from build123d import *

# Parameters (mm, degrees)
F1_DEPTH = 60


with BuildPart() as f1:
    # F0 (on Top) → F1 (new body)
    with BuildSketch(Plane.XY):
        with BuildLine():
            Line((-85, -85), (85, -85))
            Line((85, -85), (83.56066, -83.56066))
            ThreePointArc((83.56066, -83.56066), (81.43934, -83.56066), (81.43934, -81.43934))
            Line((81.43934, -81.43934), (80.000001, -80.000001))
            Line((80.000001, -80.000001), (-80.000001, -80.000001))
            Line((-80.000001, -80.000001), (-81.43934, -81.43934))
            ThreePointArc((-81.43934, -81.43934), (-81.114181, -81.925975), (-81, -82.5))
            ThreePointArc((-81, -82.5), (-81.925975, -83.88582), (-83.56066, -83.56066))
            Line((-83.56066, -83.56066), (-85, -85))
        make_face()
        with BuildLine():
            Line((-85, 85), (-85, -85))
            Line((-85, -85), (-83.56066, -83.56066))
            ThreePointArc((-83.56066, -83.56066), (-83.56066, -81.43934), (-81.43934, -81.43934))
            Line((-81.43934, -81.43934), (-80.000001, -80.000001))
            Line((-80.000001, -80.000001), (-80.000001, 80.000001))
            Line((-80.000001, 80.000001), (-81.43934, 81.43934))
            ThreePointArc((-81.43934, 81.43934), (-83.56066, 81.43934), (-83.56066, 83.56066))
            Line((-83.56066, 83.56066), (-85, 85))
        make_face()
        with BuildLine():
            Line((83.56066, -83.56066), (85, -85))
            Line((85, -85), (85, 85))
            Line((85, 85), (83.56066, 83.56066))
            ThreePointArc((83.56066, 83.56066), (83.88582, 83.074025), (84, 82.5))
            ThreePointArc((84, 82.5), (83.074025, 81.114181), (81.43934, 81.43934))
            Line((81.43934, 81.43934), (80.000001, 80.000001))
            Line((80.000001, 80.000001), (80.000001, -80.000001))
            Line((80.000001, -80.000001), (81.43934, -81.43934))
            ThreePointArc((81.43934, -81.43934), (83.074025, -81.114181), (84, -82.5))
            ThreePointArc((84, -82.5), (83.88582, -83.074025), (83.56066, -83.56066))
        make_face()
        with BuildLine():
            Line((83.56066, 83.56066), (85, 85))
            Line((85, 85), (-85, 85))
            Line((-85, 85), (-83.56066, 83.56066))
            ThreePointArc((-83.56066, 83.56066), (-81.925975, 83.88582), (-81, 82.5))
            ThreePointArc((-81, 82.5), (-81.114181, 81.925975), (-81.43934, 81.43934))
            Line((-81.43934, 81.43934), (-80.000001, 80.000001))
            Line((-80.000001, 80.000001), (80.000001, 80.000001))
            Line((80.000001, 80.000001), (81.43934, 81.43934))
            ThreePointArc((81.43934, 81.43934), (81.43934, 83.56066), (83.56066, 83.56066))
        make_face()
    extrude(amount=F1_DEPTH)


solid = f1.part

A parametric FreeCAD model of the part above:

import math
import FreeCAD as App
import Part
import Sketcher

V = App.Vector
Q = App.Units.Quantity

doc = App.newDocument("Part")
params = doc.addObject("Spreadsheet::Sheet", "Params")
for row, (alias, value) in enumerate([
    ("sketch1_radius", "1.5 mm"),
    ("sketch1_width", "170 mm"),
    ("sketch1_width2", "160.000002 mm"),
    ("pad1_length", "60 mm"),
], start=1):
    params.set(f"A{row}", alias)
    params.set(f"B{row}", "=" + value)
    params.setAlias(f"B{row}", alias)

body = doc.addObject("PartDesign::Body", "Body")

sketch1 = body.newObject("Sketcher::SketchObject", "Sketch")
sketch1.AttachmentSupport = (doc.getObject("XY_Plane"), [""])
sketch1.MapMode = "FlatFace"
sketch1.addGeometry(Part.LineSegment(V(-85, -85, 0), V(85, -85, 0)), False)
sketch1.addGeometry(Part.LineSegment(V(85, -85, 0), V(85, 85, 0)), False)
sketch1.addGeometry(Part.LineSegment(V(85, 85, 0), V(-85, 85, 0)), False)
sketch1.addGeometry(Part.LineSegment(V(-85, 85, 0), V(-85, -85, 0)), False)
sketch1.addGeometry(Part.ArcOfCircle(Part.Circle(V(82.5, 82.5, 0), V(0, 0, 1), 1.5), math.radians(0), math.radians(45)), False)
sketch1.addGeometry(Part.ArcOfCircle(Part.Circle(V(82.5, 82.5, 0), V(0, 0, 1), 1.5), math.radians(-135), math.radians(0)), False)
sketch1.addGeometry(Part.ArcOfCircle(Part.Circle(V(82.5, 82.5, 0), V(0, 0, 1), 1.5), math.radians(45), math.radians(225)), False)
sketch1.addGeometry(Part.LineSegment(V(80, 80, 0), V(80, -80, 0)), False)
sketch1.addGeometry(Part.LineSegment(V(80, -80, 0), V(-80, -80, 0)), False)
sketch1.addGeometry(Part.LineSegment(V(-80, -80, 0), V(-80, 80, 0)), False)
sketch1.addGeometry(Part.LineSegment(V(-80, 80, 0), V(80, 80, 0)), False)
sketch1.addGeometry(Part.ArcOfCircle(Part.Circle(V(-82.5, 82.5, 0), V(0, 0, 1), 1.5), math.radians(135), math.radians(315)), False)
sketch1.addGeometry(Part.ArcOfCircle(Part.Circle(V(-82.5, 82.5, 0), V(0, 0, 1), 1.5), math.radians(0), math.radians(135)), False)
sketch1.addGeometry(Part.ArcOfCircle(Part.Circle(V(-82.5, 82.5, 0), V(0, 0, 1), 1.5), math.radians(-45), math.radians(0)), False)
sketch1.addGeometry(Part.ArcOfCircle(Part.Circle(V(82.5, -82.5, 0), V(0, 0, 1), 1.5), math.radians(135), math.radians(315)), False)
sketch1.addGeometry(Part.ArcOfCircle(Part.Circle(V(82.5, -82.5, 0), V(0, 0, 1), 1.5), math.radians(0), math.radians(135)), False)
sketch1.addGeometry(Part.ArcOfCircle(Part.Circle(V(82.5, -82.5, 0), V(0, 0, 1), 1.5), math.radians(-45), math.radians(0)), False)
sketch1.addGeometry(Part.ArcOfCircle(Part.Circle(V(-82.5, -82.5, 0), V(0, 0, 1), 1.5), math.radians(0), math.radians(45)), False)
sketch1.addGeometry(Part.ArcOfCircle(Part.Circle(V(-82.5, -82.5, 0), V(0, 0, 1), 1.5), math.radians(-135), math.radians(0)), False)
sketch1.addGeometry(Part.ArcOfCircle(Part.Circle(V(-82.5, -82.5, 0), V(0, 0, 1), 1.5), math.radians(45), math.radians(225)), False)
sketch1.addConstraint(Sketcher.Constraint("Coincident", 0, 2, 1, 1))
sketch1.addConstraint(Sketcher.Constraint("Coincident", 1, 2, 2, 1))
sketch1.addConstraint(Sketcher.Constraint("Coincident", 2, 2, 3, 1))
sketch1.addConstraint(Sketcher.Constraint("Coincident", 3, 2, 0, 1))
sketch1.addConstraint(Sketcher.Constraint("Tangent", 4, 1, 5, 2))
sketch1.addConstraint(Sketcher.Constraint("Tangent", 5, 1, 6, 2))
sketch1.addConstraint(Sketcher.Constraint("Coincident", 6, 1, 4, 2))
sketch1.addConstraint(Sketcher.Constraint("Coincident", 7, 2, 8, 1))
sketch1.addConstraint(Sketcher.Constraint("Coincident", 8, 2, 9, 1))
sketch1.addConstraint(Sketcher.Constraint("Coincident", 9, 2, 10, 1))
sketch1.addConstraint(Sketcher.Constraint("Coincident", 10, 2, 7, 1))
sketch1.addConstraint(Sketcher.Constraint("Tangent", 11, 1, 12, 2))
sketch1.addConstraint(Sketcher.Constraint("Tangent", 12, 1, 13, 2))
sketch1.addConstraint(Sketcher.Constraint("Tangent", 13, 1, 11, 2))
sketch1.addConstraint(Sketcher.Constraint("Tangent", 14, 1, 15, 2))
sketch1.addConstraint(Sketcher.Constraint("Tangent", 15, 1, 16, 2))
sketch1.addConstraint(Sketcher.Constraint("Coincident", 16, 1, 14, 2))
sketch1.addConstraint(Sketcher.Constraint("Tangent", 17, 1, 18, 2))
sketch1.addConstraint(Sketcher.Constraint("Tangent", 18, 1, 19, 2))
sketch1.addConstraint(Sketcher.Constraint("Tangent", 19, 1, 17, 2))
sketch1.addConstraint(Sketcher.Constraint("Horizontal", 0))
sketch1.addConstraint(Sketcher.Constraint("Vertical", 1))
sketch1.addConstraint(Sketcher.Constraint("Horizontal", 2))
sketch1.addConstraint(Sketcher.Constraint("Vertical", 3))
sketch1.addConstraint(Sketcher.Constraint("Vertical", 7))
sketch1.addConstraint(Sketcher.Constraint("Horizontal", 8))
sketch1.addConstraint(Sketcher.Constraint("Vertical", 9))
sketch1.addConstraint(Sketcher.Constraint("Horizontal", 10))
sketch1.addConstraint(Sketcher.Constraint("Equal", 5, 6))
sketch1.addConstraint(Sketcher.Constraint("Equal", 6, 11))
sketch1.addConstraint(Sketcher.Constraint("Equal", 12, 14))
sketch1.addConstraint(Sketcher.Constraint("Equal", 14, 15))
sketch1.addConstraint(Sketcher.Constraint("Equal", 13, 17))
sketch1.addConstraint(Sketcher.Constraint("Symmetric", 11, 3, 14, 3, -1, 1))
sketch1.addConstraint(Sketcher.Constraint("Symmetric", 4, 3, 17, 3, -1, 1))
sketch1.addConstraint(Sketcher.Constraint("Symmetric", 0, 2, 2, 2, -1, 1))
sketch1.addConstraint(Sketcher.Constraint("Symmetric", 7, 2, 9, 2, -1, 1))
sketch1.addConstraint(Sketcher.Constraint("Symmetric", 4, 3, 11, 3, -2))
sketch1.addConstraint(Sketcher.Constraint("Horizontal", 13, 3, 4, 1))
sketch1.addConstraint(Sketcher.Constraint("Horizontal", 6, 1, 11, 1))
sketch1.addConstraint(Sketcher.Constraint("Horizontal", 4, 1, 12, 1))
sketch1.addConstraint(Sketcher.Constraint("Horizontal", 5, 1, 13, 1))
sketch1.addConstraint(Sketcher.Constraint("Horizontal", 19, 3, 15, 1))
sketch1.addConstraint(Sketcher.Constraint("Horizontal", 15, 1, 17, 1))
sketch1.addConstraint(Sketcher.Constraint("Horizontal", 16, 1, 18, 1))
sketch1.addConstraint(Sketcher.Constraint("Horizontal", 14, 1, 19, 1))
sketch1.addConstraint(Sketcher.Constraint("Vertical", 5, 1, 14, 1))
sketch1.addConstraint(Sketcher.Constraint("Vertical", 6, 1, 16, 1))
sketch1.addConstraint(Sketcher.Constraint("Equal", 2, 1))
sketch1.addConstraint(Sketcher.Constraint("Equal", 10, 7))
sketch1.addConstraint(Sketcher.Constraint("Radius", 5, Q("1.5 mm")))
sketch1.addConstraint(Sketcher.Constraint("DistanceX", 0, 1, 0, 2, Q("170 mm")))
sketch1.addConstraint(Sketcher.Constraint("DistanceX", 8, 2, 8, 1, Q("160.000002 mm")))
sketch1.addConstraint(Sketcher.Constraint("DistanceX", -1, 1, 4, 1, Q("84 mm")))
sketch1.addConstraint(Sketcher.Constraint("DistanceY", 14, 3, 6, 3, Q("165 mm")))
sketch1.addConstraint(Sketcher.Constraint("DistanceX", -1, 1, 5, 1, Q("81.43934 mm")))
sketch1.addConstraint(Sketcher.Constraint("DistanceX", -1, 1, 6, 1, Q("83.56066 mm")))
sketch1.setExpression("Constraints[50]", "Params.sketch1_radius")
sketch1.setExpression("Constraints[51]", "Params.sketch1_width")
sketch1.setExpression("Constraints[52]", "Params.sketch1_width2")
pad1 = body.newObject("PartDesign::Pad", "Pad")
pad1.Profile = sketch1
pad1.setExpression("Length", "Params.pad1_length")

doc.recompute()
